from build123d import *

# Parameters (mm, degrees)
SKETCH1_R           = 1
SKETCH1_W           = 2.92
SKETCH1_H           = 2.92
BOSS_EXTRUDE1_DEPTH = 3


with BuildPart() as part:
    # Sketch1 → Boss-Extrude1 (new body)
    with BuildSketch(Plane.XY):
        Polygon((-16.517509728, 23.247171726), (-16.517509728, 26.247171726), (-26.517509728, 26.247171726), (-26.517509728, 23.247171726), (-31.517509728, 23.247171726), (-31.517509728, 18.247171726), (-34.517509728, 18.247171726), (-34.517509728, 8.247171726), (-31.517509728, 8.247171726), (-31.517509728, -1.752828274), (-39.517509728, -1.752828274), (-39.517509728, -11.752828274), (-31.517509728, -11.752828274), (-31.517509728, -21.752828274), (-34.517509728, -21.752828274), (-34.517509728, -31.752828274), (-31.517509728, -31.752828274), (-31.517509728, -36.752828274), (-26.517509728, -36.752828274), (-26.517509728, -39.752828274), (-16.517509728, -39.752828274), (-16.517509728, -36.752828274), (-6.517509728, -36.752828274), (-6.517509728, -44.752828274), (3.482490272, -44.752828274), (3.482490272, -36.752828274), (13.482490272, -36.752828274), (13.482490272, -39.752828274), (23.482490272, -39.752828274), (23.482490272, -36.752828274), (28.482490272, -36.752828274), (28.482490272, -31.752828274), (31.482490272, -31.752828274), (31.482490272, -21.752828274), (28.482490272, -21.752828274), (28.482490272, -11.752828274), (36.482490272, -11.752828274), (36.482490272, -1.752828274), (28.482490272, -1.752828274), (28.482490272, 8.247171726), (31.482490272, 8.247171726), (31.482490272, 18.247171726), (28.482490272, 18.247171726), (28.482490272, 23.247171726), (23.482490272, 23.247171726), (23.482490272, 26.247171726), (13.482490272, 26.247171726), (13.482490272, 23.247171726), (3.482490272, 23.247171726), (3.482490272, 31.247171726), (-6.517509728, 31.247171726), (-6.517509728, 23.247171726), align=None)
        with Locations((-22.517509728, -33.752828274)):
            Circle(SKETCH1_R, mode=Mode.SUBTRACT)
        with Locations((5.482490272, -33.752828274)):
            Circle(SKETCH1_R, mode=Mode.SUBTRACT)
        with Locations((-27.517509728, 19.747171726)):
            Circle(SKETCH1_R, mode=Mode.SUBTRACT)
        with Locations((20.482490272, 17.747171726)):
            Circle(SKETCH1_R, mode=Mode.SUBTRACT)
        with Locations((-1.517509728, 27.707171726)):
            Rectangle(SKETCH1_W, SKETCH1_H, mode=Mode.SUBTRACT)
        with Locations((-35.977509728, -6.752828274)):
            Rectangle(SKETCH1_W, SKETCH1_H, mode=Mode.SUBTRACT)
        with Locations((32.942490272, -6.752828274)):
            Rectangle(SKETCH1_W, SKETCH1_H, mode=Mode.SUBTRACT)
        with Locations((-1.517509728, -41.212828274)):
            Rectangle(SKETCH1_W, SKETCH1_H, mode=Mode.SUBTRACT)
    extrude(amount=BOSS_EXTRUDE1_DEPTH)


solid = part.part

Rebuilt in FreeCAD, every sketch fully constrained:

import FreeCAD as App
import Part
import Sketcher
from FreeCAD import Vector


def add_polygon(sketch, points):
    """Adds a closed chain of lines whose ends are joined by coincident constraints."""
    first, n = sketch.GeometryCount, len(points)
    for a, b in zip(points, points[1:] + points[:1]):
        sketch.addGeometry(Part.LineSegment(App.Vector(*a, 0), App.Vector(*b, 0)), False)
    for i in range(n):
        sketch.addConstraint(Sketcher.Constraint("Coincident", first + i, 2, first + (i + 1) % n, 1))

doc = App.newDocument("Part")
params = doc.addObject("Spreadsheet::Sheet", "Params")
for row, (alias, value) in enumerate([
    ("sketch1_diameter", "2 mm"),
    ("sketch1_width", "10 mm"),
    ("sketch1_width2", "5 mm"),
    ("sketch1_width3", "3 mm"),
    ("sketch1_width4", "8 mm"),
    ("pad1_length", "3 mm"),
], start=1):
    params.set(f"A{row}", alias)
    params.set(f"B{row}", "=" + value)
    params.setAlias(f"B{row}", alias)

body = doc.addObject("PartDesign::Body", "Body")

sketch1 = doc.addObject("Sketcher::SketchObject", "Sketch")
body.addObject(sketch1)
sketch1.AttachmentSupport = (doc.XY_Plane, [""])
sketch1.MapMode = "FlatFace"
add_polygon(sketch1, [(-16.51751, 23.247172), (-16.51751, 26.247172), (-26.51751, 26.247172), (-26.51751, 23.247172), (-31.51751, 23.247172), (-31.51751, 18.247172), (-34.51751, 18.247172), (-34.51751, 8.247172), (-31.51751, 8.247172), (-31.51751, -1.752828), (-39.51751, -1.752828), (-39.51751, -11.752828), (-31.51751, -11.752828), (-31.51751, -21.752828), (-34.51751, -21.752828), (-34.51751, -31.752828), (-31.51751, -31.752828), (-31.51751, -36.752828), (-26.51751, -36.752828), (-26.51751, -39.752828), (-16.51751, -39.752828), (-16.51751, -36.752828), (-6.51751, -36.752828), (-6.51751, -44.752828), (3.48249, -44.752828), (3.48249, -36.752828), (13.48249, -36.752828), (13.48249, -39.752828), (23.48249, -39.752828), (23.48249, -36.752828), (28.48249, -36.752828), (28.48249, -31.752828), (31.48249, -31.752828), (31.48249, -21.752828), (28.48249, -21.752828), (28.48249, -11.752828), (36.48249, -11.752828), (36.48249, -1.752828), (28.48249, -1.752828), (28.48249, 8.247172), (31.48249, 8.247172), (31.48249, 18.247172), (28.48249, 18.247172), (28.48249, 23.247172), (23.48249, 23.247172), (23.48249, 26.247172), (13.48249, 26.247172), (13.48249, 23.247172), (3.48249, 23.247172), (3.48249, 31.247172), (-6.51751, 31.247172), (-6.51751, 23.247172)])
sketch1.addGeometry(Part.Circle(Vector(-22.51751, -33.752828, 0), Vector(0, 0, 1), 1), False)
add_polygon(sketch1, [(-0.05751, -42.672828), (-2.97751, -42.672828), (-2.97751, -39.752828), (-0.05751, -39.752828)])
sketch1.addGeometry(Part.Circle(Vector(5.48249, -33.752828, 0), Vector(0, 0, 1), 1), False)
add_polygon(sketch1, [(-34.51751, -8.212828), (-37.43751, -8.212828), (-37.43751, -5.292828), (-34.51751, -5.292828)])
sketch1.addGeometry(Part.Circle(Vector(-27.51751, 19.747172, 0), Vector(0, 0, 1), 1), False)
add_polygon(sketch1, [(34.40249, -8.212828), (31.48249, -8.212828), (31.48249, -5.292828), (34.40249, -5.292828)])
add_polygon(sketch1, [(-0.05751, 26.247172), (-2.97751, 26.247172), (-2.97751, 29.167172), (-0.05751, 29.167172)])
sketch1.addGeometry(Part.Circle(Vector(20.48249, 17.747172, 0), Vector(0, 0, 1), 1), False)
sketch1.addConstraint([
    Sketcher.Constraint("Vertical", 0),
    Sketcher.Constraint("Horizontal", 1),
    Sketcher.Constraint("Vertical", 2),
    Sketcher.Constraint("Horizontal", 3),
    Sketcher.Constraint("Vertical", 4),
    Sketcher.Constraint("Horizontal", 5),
    Sketcher.Constraint("Vertical", 6),
    Sketcher.Constraint("Horizontal", 7),
    Sketcher.Constraint("Vertical", 8),
    Sketcher.Constraint("Horizontal", 9),
    Sketcher.Constraint("Vertical", 10),
    Sketcher.Constraint("Horizontal", 11),
    Sketcher.Constraint("Vertical", 12),
    Sketcher.Constraint("Horizontal", 13),
    Sketcher.Constraint("Vertical", 14),
    Sketcher.Constraint("Horizontal", 15),
    Sketcher.Constraint("Vertical", 16),
    Sketcher.Constraint("Horizontal", 17),
    Sketcher.Constraint("Vertical", 18),
    Sketcher.Constraint("Horizontal", 19),
    Sketcher.Constraint("Vertical", 20),
    Sketcher.Constraint("Horizontal", 21),
    Sketcher.Constraint("Vertical", 22),
    Sketcher.Constraint("Horizontal", 23),
    Sketcher.Constraint("Vertical", 24),
    Sketcher.Constraint("Horizontal", 25),
    Sketcher.Constraint("Vertical", 26),
    Sketcher.Constraint("Horizontal", 27),
    Sketcher.Constraint("Vertical", 28),
    Sketcher.Constraint("Horizontal", 29),
    Sketcher.Constraint("Vertical", 30),
    Sketcher.Constraint("Horizontal", 31),
    Sketcher.Constraint("Vertical", 32),
    Sketcher.Constraint("Horizontal", 33),
    Sketcher.Constraint("Vertical", 34),
    Sketcher.Constraint("Horizontal", 35),
    Sketcher.Constraint("Vertical", 36),
    Sketcher.Constraint("Horizontal", 37),
    Sketcher.Constraint("Vertical", 38),
    Sketcher.Constraint("Horizontal", 39),
    Sketcher.Constraint("Vertical", 40),
    Sketcher.Constraint("Horizontal", 41),
    Sketcher.Constraint("Vertical", 42),
    Sketcher.Constraint("Horizontal", 43),
    Sketcher.Constraint("Vertical", 44),
    Sketcher.Constraint("Horizontal", 45),
    Sketcher.Constraint("Vertical", 46),
    Sketcher.Constraint("Horizontal", 47),
    Sketcher.Constraint("Vertical", 48),
    Sketcher.Constraint("Horizontal", 49),
    Sketcher.Constraint("Vertical", 50),
    Sketcher.Constraint("Horizontal", 51),
    Sketcher.Constraint("Horizontal", 53),
    Sketcher.Constraint("Vertical", 54),
    Sketcher.Constraint("Horizontal", 55),
    Sketcher.Constraint("Vertical", 56),
    Sketcher.Constraint("Horizontal", 58),
    Sketcher.Constraint("Vertical", 59),
    Sketcher.Constraint("Horizontal", 60),
    Sketcher.Constraint("Vertical", 61),
    Sketcher.Constraint("Horizontal", 63),
    Sketcher.Constraint("Vertical", 64),
    Sketcher.Constraint("Horizontal", 65),
    Sketcher.Constraint("Vertical", 66),
    Sketcher.Constraint("Horizontal", 67),
    Sketcher.Constraint("Vertical", 68),
    Sketcher.Constraint("Horizontal", 69),
    Sketcher.Constraint("Vertical", 70),
    Sketcher.Constraint("Equal", 52, 57),
    Sketcher.Constraint("Equal", 57, 62),
    Sketcher.Constraint("Equal", 62, 71),
    Sketcher.Constraint("Horizontal", 52, 3, 57, 3),
    Sketcher.Constraint("Horizontal", 17, 2, 20, 2),
    Sketcher.Constraint("Horizontal", 21, 2, 24, 2),
    Sketcher.Constraint("Horizontal", 19, 2, 26, 2),
    Sketcher.Constraint("Horizontal", 25, 2, 28, 2),
    Sketcher.Constraint("Horizontal", 15, 2, 30, 2),
    Sketcher.Constraint("Horizontal", 13, 2, 32, 2),
    Sketcher.Constraint("Horizontal", 11, 2, 34, 2),
    Sketcher.Constraint("Horizontal", 9, 2, 36, 2),
    Sketcher.Constraint("Horizontal", 7, 2, 38, 2),
    Sketcher.Constraint("Horizontal", 5, 2, 40, 2),
    Sketcher.Constraint("Horizontal", 3, 2, 42, 2),
    Sketcher.Constraint("Horizontal", 1, 2, 44, 2),
    Sketcher.Constraint("Horizontal", 43, 2, 46, 2),
    Sketcher.Constraint("Horizontal", 47, 2, 50, 2),
    Sketcher.Constraint("Horizontal", 27, 2, 54, 2),
    Sketcher.Constraint("Horizontal", 61, 2, 63, 2),
    Sketcher.Constraint("Horizontal", 60, 2, 64, 2),
    Sketcher.Constraint("Horizontal", 45, 2, 67, 2),
    Sketcher.Constraint("Vertical", 4, 2, 7, 2),
    Sketcher.Constraint("Vertical", 8, 2, 11, 2),
    Sketcher.Constraint("Vertical", 6, 2, 13, 2),
    Sketcher.Constraint("Vertical", 12, 2, 15, 2),
    Sketcher.Constraint("Vertical", 2, 2, 17, 2),
    Sketcher.Constraint("Vertical", 0, 2, 19, 2),
    Sketcher.Constraint("Vertical", 30, 2, 33, 2),
    Sketcher.Constraint("Vertical", 34, 2, 37, 2),
    Sketcher.Constraint("Vertical", 32, 2, 39, 2),
    Sketcher.Constraint("Vertical", 38, 2, 41, 2),
    Sketcher.Constraint("Vertical", 28, 2, 43, 2),
    Sketcher.Constraint("Vertical", 26, 2, 45, 2),
    Sketcher.Constraint("Vertical", 24, 2, 47, 2),
    Sketcher.Constraint("Vertical", 22, 2, 49, 2),
    Sketcher.Constraint("Vertical", 14, 2, 60, 2),
    Sketcher.Constraint("Vertical", 40, 2, 63, 2),
    Sketcher.Constraint("Vertical", 54, 2, 67, 2),
    Sketcher.Constraint("Vertical", 56, 2, 69, 2),
    Sketcher.Constraint("Equal", 19, 21),
    Sketcher.Constraint("Equal", 21, 23),
    Sketcher.Constraint("Equal", 23, 25),
    Sketcher.Constraint("Equal", 25, 27),
    Sketcher.Constraint("Equal", 17, 29),
    Sketcher.Constraint("Equal", 15, 31),
    Sketcher.Constraint("Equal", 11, 35),
    Sketcher.Constraint("Equal", 55, 58),
    Sketcher.Constraint("Equal", 60, 63),
    Sketcher.Constraint("Equal", 41, 0),
    Sketcher.Constraint("Equal", 43, 4),
    Sketcher.Constraint("Equal", 51, 6),
    Sketcher.Constraint("Equal", 6, 8),
    Sketcher.Constraint("Equal", 8, 10),
    Sketcher.Constraint("Equal", 10, 12),
    Sketcher.Constraint("Equal", 12, 14),
    Sketcher.Constraint("Equal", 4, 16),
    Sketcher.Constraint("Equal", 2, 18),
    Sketcher.Constraint("Equal", 37, 22),
    Sketcher.Constraint("Equal", 24, 48),
    Sketcher.Constraint("Equal", 69, 54),
    Sketcher.Constraint("Equal", 56, 59),
    Sketcher.Constraint("Equal", 66, 68),
    Sketcher.Constraint("Diameter", 52, 2.0),
    Sketcher.Constraint("DistanceX", 1, 2, 1, 1, 10.0),
    Sketcher.Constraint("DistanceX", 3, 2, 3, 1, 5.0),
    Sketcher.Constraint("DistanceX", 5, 2, 5, 1, 3.0),
    Sketcher.Constraint("DistanceX", 9, 2, 9, 1, 8.0),
    Sketcher.Constraint("DistanceX", 53, 2, 53, 1, 2.92),
    Sketcher.Constraint("DistanceX", 52, 3, -1, 1, 22.51751),
    Sketcher.Constraint("DistanceY", 52, 3, -1, 1, 33.752828),
    Sketcher.Constraint("DistanceX", -1, 1, 57, 3, 5.48249),
    Sketcher.Constraint("DistanceX", 62, 3, -1, 1, 27.51751),
    Sketcher.Constraint("DistanceY", -1, 1, 62, 3, 19.747172),
    Sketcher.Constraint("DistanceX", -1, 1, 71, 3, 20.48249),
    Sketcher.Constraint("DistanceY", -1, 1, 71, 3, 17.747172),
    Sketcher.Constraint("DistanceX", 0, 2, -1, 1, 16.51751),
    Sketcher.Constraint("DistanceY", -1, 1, 0, 2, 26.247172),
    Sketcher.Constraint("DistanceX", 53, 2, -1, 1, 2.97751),
    Sketcher.Constraint("DistanceY", 58, 2, -1, 1, 8.212828),
])
sketch1.setExpression("Constraints[199]", "Params.sketch1_diameter")
sketch1.setExpression("Constraints[200]", "Params.sketch1_width")
sketch1.setExpression("Constraints[201]", "Params.sketch1_width2")
sketch1.setExpression("Constraints[202]", "Params.sketch1_width3")
sketch1.setExpression("Constraints[203]", "Params.sketch1_width4")
pad1 = doc.addObject("PartDesign::Pad", "Pad")
body.addObject(pad1)
pad1.Profile = sketch1
pad1.setExpression("Length", "Params.pad1_length")

doc.recompute()
